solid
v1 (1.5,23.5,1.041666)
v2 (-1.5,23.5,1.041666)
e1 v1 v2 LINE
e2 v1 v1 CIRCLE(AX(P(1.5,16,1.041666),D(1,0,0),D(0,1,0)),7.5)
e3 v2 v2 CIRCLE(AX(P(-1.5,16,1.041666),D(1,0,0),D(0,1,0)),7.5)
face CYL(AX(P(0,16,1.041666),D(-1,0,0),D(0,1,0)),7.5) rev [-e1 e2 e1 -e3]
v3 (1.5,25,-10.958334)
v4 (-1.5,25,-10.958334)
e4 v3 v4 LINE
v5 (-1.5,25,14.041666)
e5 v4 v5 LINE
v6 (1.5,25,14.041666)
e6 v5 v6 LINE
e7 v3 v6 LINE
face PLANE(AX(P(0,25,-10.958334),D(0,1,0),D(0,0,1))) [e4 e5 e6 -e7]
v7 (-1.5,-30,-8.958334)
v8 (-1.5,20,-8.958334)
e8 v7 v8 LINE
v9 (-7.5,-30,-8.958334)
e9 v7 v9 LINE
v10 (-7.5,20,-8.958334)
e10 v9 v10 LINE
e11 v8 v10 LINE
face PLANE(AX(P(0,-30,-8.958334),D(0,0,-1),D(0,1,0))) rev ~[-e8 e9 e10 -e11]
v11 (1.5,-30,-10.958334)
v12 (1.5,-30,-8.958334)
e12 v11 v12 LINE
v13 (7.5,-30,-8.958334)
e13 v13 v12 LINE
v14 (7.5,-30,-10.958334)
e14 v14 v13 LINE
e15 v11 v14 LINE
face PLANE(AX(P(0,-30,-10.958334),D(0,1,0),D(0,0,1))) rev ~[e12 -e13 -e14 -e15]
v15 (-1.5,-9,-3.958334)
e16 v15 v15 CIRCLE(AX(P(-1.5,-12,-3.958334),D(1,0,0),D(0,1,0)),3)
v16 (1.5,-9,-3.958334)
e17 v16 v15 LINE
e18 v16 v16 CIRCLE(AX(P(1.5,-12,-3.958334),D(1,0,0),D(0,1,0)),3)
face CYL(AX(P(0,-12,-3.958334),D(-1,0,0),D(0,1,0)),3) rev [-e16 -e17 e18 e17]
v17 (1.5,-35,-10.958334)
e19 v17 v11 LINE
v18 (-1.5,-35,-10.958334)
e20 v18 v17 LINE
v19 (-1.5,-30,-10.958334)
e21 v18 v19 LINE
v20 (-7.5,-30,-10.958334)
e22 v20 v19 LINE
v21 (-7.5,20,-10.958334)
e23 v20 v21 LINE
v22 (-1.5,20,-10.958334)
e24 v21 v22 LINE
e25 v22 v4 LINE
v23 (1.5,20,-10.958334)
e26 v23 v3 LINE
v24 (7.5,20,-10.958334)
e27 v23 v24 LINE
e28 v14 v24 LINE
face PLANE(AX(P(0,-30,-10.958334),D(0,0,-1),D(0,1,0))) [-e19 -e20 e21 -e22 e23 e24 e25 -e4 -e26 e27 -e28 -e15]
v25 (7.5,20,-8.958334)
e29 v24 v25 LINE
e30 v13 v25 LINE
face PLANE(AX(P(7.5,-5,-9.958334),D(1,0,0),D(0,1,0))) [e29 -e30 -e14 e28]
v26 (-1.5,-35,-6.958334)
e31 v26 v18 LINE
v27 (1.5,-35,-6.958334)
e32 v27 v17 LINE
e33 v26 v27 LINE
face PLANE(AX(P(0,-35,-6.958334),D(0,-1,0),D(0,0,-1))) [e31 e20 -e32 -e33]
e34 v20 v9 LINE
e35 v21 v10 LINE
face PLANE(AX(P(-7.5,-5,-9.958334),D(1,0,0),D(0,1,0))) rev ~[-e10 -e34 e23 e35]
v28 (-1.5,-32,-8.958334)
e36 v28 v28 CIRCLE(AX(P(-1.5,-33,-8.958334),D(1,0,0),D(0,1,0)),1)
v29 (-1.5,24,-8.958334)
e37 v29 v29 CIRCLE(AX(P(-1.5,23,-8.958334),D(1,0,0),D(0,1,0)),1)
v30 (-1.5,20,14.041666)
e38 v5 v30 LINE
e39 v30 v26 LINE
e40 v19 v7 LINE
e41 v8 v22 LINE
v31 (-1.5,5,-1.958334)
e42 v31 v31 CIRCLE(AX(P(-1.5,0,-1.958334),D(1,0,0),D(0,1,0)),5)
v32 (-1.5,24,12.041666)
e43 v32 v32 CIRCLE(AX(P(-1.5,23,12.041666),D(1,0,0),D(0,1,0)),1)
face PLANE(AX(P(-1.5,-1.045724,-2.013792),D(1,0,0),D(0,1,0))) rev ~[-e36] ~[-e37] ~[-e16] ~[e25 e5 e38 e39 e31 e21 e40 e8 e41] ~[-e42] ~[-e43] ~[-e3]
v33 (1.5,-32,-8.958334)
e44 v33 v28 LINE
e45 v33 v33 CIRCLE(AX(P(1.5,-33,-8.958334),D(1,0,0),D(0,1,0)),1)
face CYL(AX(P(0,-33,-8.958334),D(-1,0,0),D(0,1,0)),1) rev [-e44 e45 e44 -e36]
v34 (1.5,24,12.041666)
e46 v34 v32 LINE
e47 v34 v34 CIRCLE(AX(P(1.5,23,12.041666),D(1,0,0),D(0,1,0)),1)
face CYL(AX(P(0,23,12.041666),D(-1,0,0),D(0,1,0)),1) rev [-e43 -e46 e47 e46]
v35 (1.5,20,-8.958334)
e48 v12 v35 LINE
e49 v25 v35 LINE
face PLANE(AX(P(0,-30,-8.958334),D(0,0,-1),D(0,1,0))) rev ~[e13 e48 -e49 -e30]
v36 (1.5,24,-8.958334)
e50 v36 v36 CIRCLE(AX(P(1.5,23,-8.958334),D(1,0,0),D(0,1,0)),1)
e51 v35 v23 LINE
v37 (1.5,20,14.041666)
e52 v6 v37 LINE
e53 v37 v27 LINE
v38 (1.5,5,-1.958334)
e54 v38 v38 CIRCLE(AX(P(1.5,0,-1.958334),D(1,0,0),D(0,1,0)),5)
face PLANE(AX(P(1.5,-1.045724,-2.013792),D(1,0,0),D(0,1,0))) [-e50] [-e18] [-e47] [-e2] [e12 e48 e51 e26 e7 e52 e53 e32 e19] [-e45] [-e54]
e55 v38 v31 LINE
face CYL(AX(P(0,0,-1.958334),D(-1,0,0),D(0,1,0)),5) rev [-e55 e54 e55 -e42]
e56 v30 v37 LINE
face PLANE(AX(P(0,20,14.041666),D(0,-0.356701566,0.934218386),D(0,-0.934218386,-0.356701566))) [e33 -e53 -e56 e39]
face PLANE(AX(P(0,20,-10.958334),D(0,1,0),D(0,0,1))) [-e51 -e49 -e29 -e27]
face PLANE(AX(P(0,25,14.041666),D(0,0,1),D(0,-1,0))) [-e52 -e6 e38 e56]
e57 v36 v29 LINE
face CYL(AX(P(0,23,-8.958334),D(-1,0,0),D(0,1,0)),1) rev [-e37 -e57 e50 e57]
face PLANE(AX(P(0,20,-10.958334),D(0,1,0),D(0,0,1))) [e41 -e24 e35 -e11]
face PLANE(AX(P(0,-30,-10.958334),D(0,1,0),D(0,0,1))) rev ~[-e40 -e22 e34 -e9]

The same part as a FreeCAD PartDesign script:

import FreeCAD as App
import Part
import Sketcher

V = App.Vector

doc = App.newDocument("Part")
body = doc.addObject("PartDesign::Body", "Body")

# Sketch on YZ plane
sketch1 = body.newObject("Sketcher::SketchObject", "Sketch")
sketch1.AttachmentSupport = (doc.getObject("YZ_Plane"), [""])
sketch1.MapMode = "FlatFace"
sketch1.addGeometry(Part.LineSegment(V(-30, -9, 0), V(-30, -11, 0)), False)
sketch1.addGeometry(Part.LineSegment(V(-30, -11, 0), V(20, -11, 0)), False)
sketch1.addGeometry(Part.LineSegment(V(20, -11, 0), V(20, -9, 0)), False)
sketch1.addGeometry(Part.LineSegment(V(20, -9, 0), V(-30, -9, 0)), False)
sketch1.addConstraint(Sketcher.Constraint("Coincident", 0, 2, 1, 1))
sketch1.addConstraint(Sketcher.Constraint("Coincident", 1, 2, 2, 1))
sketch1.addConstraint(Sketcher.Constraint("Coincident", 2, 2, 3, 1))
sketch1.addConstraint(Sketcher.Constraint("Coincident", 3, 2, 0, 1))
sketch1.addConstraint(Sketcher.Constraint("Vertical", 0))
sketch1.addConstraint(Sketcher.Constraint("Horizontal", 1))
sketch1.addConstraint(Sketcher.Constraint("Vertical", 2))
sketch1.addConstraint(Sketcher.Constraint("Horizontal", 3))
sketch1.addConstraint(Sketcher.Constraint("DistanceX", 1, 1, 1, 2, 50.0))
sketch1.addConstraint(Sketcher.Constraint("DistanceY", 0, 2, 0, 1, 2.0))
sketch1.addConstraint(Sketcher.Constraint("DistanceX", 0, 2, -1, 1, 30.0))
sketch1.addConstraint(Sketcher.Constraint("DistanceY", 0, 2, -1, 1, 10.958334))
pad1 = body.newObject("PartDesign::Pad", "Pad")
pad1.Profile = sketch1
pad1.Length = 15
pad1.Midplane = True

# Sketch on YZ plane
sketch2 = body.newObject("Sketcher::SketchObject", "Sketch001")
sketch2.AttachmentSupport = (doc.getObject("YZ_Plane"), [""])
sketch2.MapMode = "FlatFace"
sketch2.addGeometry(Part.LineSegment(V(25, -11, 0), V(25, 14, 0)), False)
sketch2.addGeometry(Part.LineSegment(V(25, 14, 0), V(20, 14, 0)), False)
sketch2.addGeometry(Part.LineSegment(V(20, 14, 0), V(-35, -7, 0)), False)
sketch2.addGeometry(Part.LineSegment(V(-35, -7, 0), V(-35, -11, 0)), False)
sketch2.addGeometry(Part.LineSegment(V(-35, -11, 0), V(-30, -11, 0)), False)
sketch2.addGeometry(Part.LineSegment(V(-30, -11, 0), V(-30, -9, 0)), False)
sketch2.addGeometry(Part.LineSegment(V(-30, -9, 0), V(20, -9, 0)), False)
sketch2.addGeometry(Part.LineSegment(V(20, -9, 0), V(20, -11, 0)), False)
sketch2.addGeometry(Part.LineSegment(V(20, -11, 0), V(25, -11, 0)), False)
sketch2.addGeometry(Part.Circle(V(-33, -9, 0), V(0, 0, 1), 1), False)
sketch2.addGeometry(Part.Circle(V(-12, -4, 0), V(0, 0, 1), 3), False)
sketch2.addGeometry(Part.Circle(V(23, -9, 0), V(0, 0, 1), 1), False)
sketch2.addGeometry(Part.Circle(V(0, -2, 0), V(0, 0, 1), 5), False)
sketch2.addGeometry(Part.Circle(V(16, 1, 0), V(0, 0, 1), 7.5), False)
sketch2.addGeometry(Part.Circle(V(23, 12, 0), V(0, 0, 1), 1), False)
sketch2.addConstraint(Sketcher.Constraint("Coincident", 0, 2, 1, 1))
sketch2.addConstraint(Sketcher.Constraint("Coincident", 1, 2, 2, 1))
sketch2.addConstraint(Sketcher.Constraint("Coincident", 2, 2, 3, 1))
sketch2.addConstraint(Sketcher.Constraint("Coincident", 3, 2, 4, 1))
sketch2.addConstraint(Sketcher.Constraint("Coincident", 4, 2, 5, 1))
sketch2.addConstraint(Sketcher.Constraint("Coincident", 5, 2, 6, 1))
sketch2.addConstraint(Sketcher.Constraint("Coincident", 6, 2, 7, 1))
sketch2.addConstraint(Sketcher.Constraint("Coincident", 7, 2, 8, 1))
sketch2.addConstraint(Sketcher.Constraint("Coincident", 8, 2, 0, 1))
sketch2.addConstraint(Sketcher.Constraint("Vertical", 0))
sketch2.addConstraint(Sketcher.Constraint("Horizontal", 1))
sketch2.addConstraint(Sketcher.Constraint("Vertical", 3))
sketch2.addConstraint(Sketcher.Constraint("Horizontal", 4))
sketch2.addConstraint(Sketcher.Constraint("Vertical", 5))
sketch2.addConstraint(Sketcher.Constraint("Horizontal", 6))
sketch2.addConstraint(Sketcher.Constraint("Vertical", 7))
sketch2.addConstraint(Sketcher.Constraint("Horizontal", 8))
sketch2.addConstraint(Sketcher.Constraint("Equal", 9, 11))
sketch2.addConstraint(Sketcher.Constraint("Equal", 11, 14))
sketch2.addConstraint(Sketcher.Constraint("PointOnObject", 12, 3, -2))
sketch2.addConstraint(Sketcher.Constraint("Horizontal", 9, 3, 11, 3))
sketch2.addConstraint(Sketcher.Constraint("Horizontal", 11, 3, 5, 2))
sketch2.addConstraint(Sketcher.Constraint("Horizontal", 4, 2, 7, 2))
sketch2.addConstraint(Sketcher.Constraint("Vertical", 11, 3, 14, 3))
sketch2.addConstraint(Sketcher.Constraint("Vertical", 1, 2, 6, 2))
sketch2.addConstraint(Sketcher.Constraint("Equal", 1, 4))
sketch2.addConstraint(Sketcher.Constraint("Diameter", 9, 2.0))
sketch2.addConstraint(Sketcher.Constraint("Diameter", 10, 6.0))
sketch2.addConstraint(Sketcher.Constraint("Diameter", 12, 10.0))
sketch2.addConstraint(Sketcher.Constraint("Diameter", 13, 15.0))
sketch2.addConstraint(Sketcher.Constraint("DistanceX", 1, 2, 1, 1, 5.0))
sketch2.addConstraint(Sketcher.Constraint("DistanceX", 6, 1, 6, 2, 50.0))
sketch2.addConstraint(Sketcher.Constraint("DistanceY", 0, 1, 0, 2, 25.0))
sketch2.addConstraint(Sketcher.Constraint("DistanceY", 3, 2, 3, 1, 4.0))
sketch2.addConstraint(Sketcher.Constraint("DistanceY", 5, 1, 5, 2, 2.0))
sketch2.addConstraint(Sketcher.Constraint("DistanceX", 9, 3, -1, 1, 33.0))
sketch2.addConstraint(Sketcher.Constraint("DistanceX", 10, 3, -1, 1, 12.0))
sketch2.addConstraint(Sketcher.Constraint("DistanceX", -1, 1, 11, 3, 23.0))
sketch2.addConstraint(Sketcher.Constraint("DistanceX", -1, 1, 13, 3, 16.0))
sketch2.addConstraint(Sketcher.Constraint("DistanceX", -1, 1, 0, 2, 25.0))
sketch2.addConstraint(Sketcher.Constraint("DistanceY", 9, 3, 10, 3, 5.0))
sketch2.addConstraint(Sketcher.Constraint("DistanceY", 10, 3, 12, 3, 2.0))
sketch2.addConstraint(Sketcher.Constraint("DistanceY", 11, 3, 13, 3, 10.0))
sketch2.addConstraint(Sketcher.Constraint("DistanceY", 13, 3, 14, 3, 11.0))
sketch2.addConstraint(Sketcher.Constraint("DistanceY", 9, 3, -1, 1, 8.958334))
pad2 = body.newObject("PartDesign::Pad", "Pad001")
pad2.Profile = sketch2
pad2.Length = 3
pad2.Midplane = True

doc.recompute()
